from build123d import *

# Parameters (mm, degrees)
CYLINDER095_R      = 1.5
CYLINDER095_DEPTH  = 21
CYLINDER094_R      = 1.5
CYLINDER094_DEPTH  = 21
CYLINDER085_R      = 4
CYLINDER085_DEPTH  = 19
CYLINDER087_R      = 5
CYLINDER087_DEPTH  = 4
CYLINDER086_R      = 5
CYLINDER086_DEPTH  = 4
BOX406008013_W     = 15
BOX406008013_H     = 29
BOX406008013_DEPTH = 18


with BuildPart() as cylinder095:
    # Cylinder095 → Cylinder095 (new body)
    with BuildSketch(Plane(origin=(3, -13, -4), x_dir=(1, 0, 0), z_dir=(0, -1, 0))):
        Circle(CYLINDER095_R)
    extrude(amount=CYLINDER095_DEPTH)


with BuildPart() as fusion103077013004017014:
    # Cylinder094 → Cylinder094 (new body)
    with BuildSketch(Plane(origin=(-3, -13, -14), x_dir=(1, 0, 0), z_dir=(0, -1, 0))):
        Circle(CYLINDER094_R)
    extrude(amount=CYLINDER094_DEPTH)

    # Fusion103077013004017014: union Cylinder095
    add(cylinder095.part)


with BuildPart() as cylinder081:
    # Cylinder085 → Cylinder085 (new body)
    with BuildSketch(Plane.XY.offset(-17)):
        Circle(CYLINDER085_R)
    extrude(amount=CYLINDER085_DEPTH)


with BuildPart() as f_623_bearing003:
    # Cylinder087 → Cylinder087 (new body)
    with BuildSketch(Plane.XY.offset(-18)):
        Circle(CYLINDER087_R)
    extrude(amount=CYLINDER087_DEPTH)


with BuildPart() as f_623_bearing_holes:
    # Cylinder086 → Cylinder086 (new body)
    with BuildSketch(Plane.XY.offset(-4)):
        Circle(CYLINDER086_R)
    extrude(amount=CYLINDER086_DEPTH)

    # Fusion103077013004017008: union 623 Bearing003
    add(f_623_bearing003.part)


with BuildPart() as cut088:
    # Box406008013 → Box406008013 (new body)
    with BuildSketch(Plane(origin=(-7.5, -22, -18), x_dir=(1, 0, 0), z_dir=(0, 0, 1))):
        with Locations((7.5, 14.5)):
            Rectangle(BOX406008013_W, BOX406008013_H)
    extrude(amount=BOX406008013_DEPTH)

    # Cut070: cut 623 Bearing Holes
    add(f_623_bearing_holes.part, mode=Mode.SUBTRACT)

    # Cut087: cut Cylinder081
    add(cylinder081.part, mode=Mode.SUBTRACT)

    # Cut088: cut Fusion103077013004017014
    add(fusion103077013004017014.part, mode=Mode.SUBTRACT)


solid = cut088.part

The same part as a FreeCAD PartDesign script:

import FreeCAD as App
import Part
import Sketcher


def add_polygon(sketch, points):
    """Adds a closed chain of lines whose ends are joined by coincident constraints."""
    first, n = sketch.GeometryCount, len(points)
    for a, b in zip(points, points[1:] + points[:1]):
        sketch.addGeometry(Part.LineSegment(App.Vector(*a, 0), App.Vector(*b, 0)), False)
    for i in range(n):
        sketch.addConstraint(Sketcher.Constraint("Coincident", first + i, 2, first + (i + 1) % n, 1))

doc = App.newDocument("Part")
body = doc.addObject("PartDesign::Body", "Body")

sketch1 = body.newObject("Sketcher::SketchObject", "Sketch")
sketch1.AttachmentSupport = (doc.getObject("XZ_Plane"), [""])
sketch1.MapMode = "FlatFace"
sketch1.AttachmentOffset = App.Placement(App.Vector(0, 0, 13), App.Rotation())
sketch1.addGeometry(Part.Circle(App.Vector(3, -4, 0), App.Vector(0, 0, 1), 1.5), False)
sketch1.addConstraint([
    Sketcher.Constraint("Diameter", 0, 3.0),
    Sketcher.Constraint("DistanceX", -1, 1, 0, 3, 3.0),
    Sketcher.Constraint("DistanceY", 0, 3, -1, 1, 4.0),
])
pad1 = body.newObject("PartDesign::Pad", "Pad")
pad1.Profile = sketch1
pad1.Length = 21
body2 = doc.addObject("PartDesign::Body", "Body001")
body2.AllowCompound = True

sketch2 = body2.newObject("Sketcher::SketchObject", "Sketch001")
sketch2.AttachmentSupport = (doc.getObject("XZ_Plane001"), [""])
sketch2.MapMode = "FlatFace"
sketch2.AttachmentOffset = App.Placement(App.Vector(0, 0, 13), App.Rotation())
sketch2.addGeometry(Part.Circle(App.Vector(-3, -14, 0), App.Vector(0, 0, 1), 1.5), False)
sketch2.addConstraint([
    Sketcher.Constraint("Diameter", 0, 3.0),
    Sketcher.Constraint("DistanceX", 0, 3, -1, 1, 3.0),
    Sketcher.Constraint("DistanceY", 0, 3, -1, 1, 14.0),
])
pad2 = body2.newObject("PartDesign::Pad", "Pad001")
pad2.Profile = sketch2
pad2.Length = 21
doc.recompute()

boolean = body2.newObject("PartDesign::Boolean", "Boolean")
boolean.Type = "Fuse"
boolean.addObjects([body])
body3 = doc.addObject("PartDesign::Body", "Body002")

sketch3 = body3.newObject("Sketcher::SketchObject", "Sketch002")
sketch3.AttachmentSupport = (doc.getObject("XY_Plane002"), [""])
sketch3.MapMode = "FlatFace"
sketch3.AttachmentOffset = App.Placement(App.Vector(0, 0, -17), App.Rotation())
sketch3.addGeometry(Part.Circle(App.Vector(0, 0, 0), App.Vector(0, 0, 1), 4), False)
sketch3.addConstraint([
    Sketcher.Constraint("Coincident", 0, 3, -1, 1),
    Sketcher.Constraint("Diameter", 0, 8.0),
])
pad3 = body3.newObject("PartDesign::Pad", "Pad002")
pad3.Profile = sketch3
pad3.Length = 19
body4 = doc.addObject("PartDesign::Body", "Body003")

sketch4 = body4.newObject("Sketcher::SketchObject", "Sketch003")
sketch4.AttachmentSupport = (doc.getObject("XY_Plane003"), [""])
sketch4.MapMode = "FlatFace"
sketch4.AttachmentOffset = App.Placement(App.Vector(0, 0, -18), App.Rotation())
sketch4.addGeometry(Part.Circle(App.Vector(0, 0, 0), App.Vector(0, 0, 1), 5), False)
sketch4.addConstraint([
    Sketcher.Constraint("Coincident", 0, 3, -1, 1),
    Sketcher.Constraint("Diameter", 0, 10.0),
])
pad4 = body4.newObject("PartDesign::Pad", "Pad003")
pad4.Profile = sketch4
pad4.Length = 4
body5 = doc.addObject("PartDesign::Body", "Body004")
body5.AllowCompound = True

sketch5 = body5.newObject("Sketcher::SketchObject", "Sketch004")
sketch5.AttachmentSupport = (doc.getObject("XY_Plane004"), [""])
sketch5.MapMode = "FlatFace"
sketch5.AttachmentOffset = App.Placement(App.Vector(0, 0, -4), App.Rotation())
sketch5.addGeometry(Part.Circle(App.Vector(0, 0, 0), App.Vector(0, 0, 1), 5), False)
sketch5.addConstraint([
    Sketcher.Constraint("Coincident", 0, 3, -1, 1),
    Sketcher.Constraint("Diameter", 0, 10.0),
])
pad5 = body5.newObject("PartDesign::Pad", "Pad004")
pad5.Profile = sketch5
pad5.Length = 4
doc.recompute()

boolean2 = body5.newObject("PartDesign::Boolean", "Boolean001")
boolean2.Type = "Fuse"
boolean2.addObjects([body4])
body6 = doc.addObject("PartDesign::Body", "Body005")

sketch6 = body6.newObject("Sketcher::SketchObject", "Sketch005")
sketch6.AttachmentSupport = (doc.getObject("XY_Plane005"), [""])
sketch6.MapMode = "FlatFace"
sketch6.AttachmentOffset = App.Placement(App.Vector(0, 0, -18), App.Rotation())
add_polygon(sketch6, [(-8, 7), (-8, -22), (8, -22), (8, 7)])
sketch6.addConstraint([
    Sketcher.Constraint("Vertical", 0),
    Sketcher.Constraint("Horizontal", 1),
    Sketcher.Constraint("Vertical", 2),
    Sketcher.Constraint("Horizontal", 3),
    Sketcher.Constraint("DistanceX", 1, 1, 1, 2, 15.0),
    Sketcher.Constraint("DistanceY", 0, 2, 0, 1, 29.0),
    Sketcher.Constraint("DistanceY", 0, 2, -1, 1, 22.0),
    Sketcher.Constraint("DistanceX", 0, 2, -1, 1, 7.5),
])
pad6 = body6.newObject("PartDesign::Pad", "Pad005")
pad6.Profile = sketch6
pad6.Length = 18
doc.recompute()

boolean3 = body6.newObject("PartDesign::Boolean", "Boolean002")
boolean3.Type = "Cut"
boolean3.addObjects([body5])
doc.recompute()

boolean4 = body6.newObject("PartDesign::Boolean", "Boolean003")
boolean4.Type = "Cut"
boolean4.addObjects([body3])
doc.recompute()

boolean5 = body6.newObject("PartDesign::Boolean", "Boolean004")
boolean5.Type = "Cut"
boolean5.addObjects([body2])

doc.recompute()
